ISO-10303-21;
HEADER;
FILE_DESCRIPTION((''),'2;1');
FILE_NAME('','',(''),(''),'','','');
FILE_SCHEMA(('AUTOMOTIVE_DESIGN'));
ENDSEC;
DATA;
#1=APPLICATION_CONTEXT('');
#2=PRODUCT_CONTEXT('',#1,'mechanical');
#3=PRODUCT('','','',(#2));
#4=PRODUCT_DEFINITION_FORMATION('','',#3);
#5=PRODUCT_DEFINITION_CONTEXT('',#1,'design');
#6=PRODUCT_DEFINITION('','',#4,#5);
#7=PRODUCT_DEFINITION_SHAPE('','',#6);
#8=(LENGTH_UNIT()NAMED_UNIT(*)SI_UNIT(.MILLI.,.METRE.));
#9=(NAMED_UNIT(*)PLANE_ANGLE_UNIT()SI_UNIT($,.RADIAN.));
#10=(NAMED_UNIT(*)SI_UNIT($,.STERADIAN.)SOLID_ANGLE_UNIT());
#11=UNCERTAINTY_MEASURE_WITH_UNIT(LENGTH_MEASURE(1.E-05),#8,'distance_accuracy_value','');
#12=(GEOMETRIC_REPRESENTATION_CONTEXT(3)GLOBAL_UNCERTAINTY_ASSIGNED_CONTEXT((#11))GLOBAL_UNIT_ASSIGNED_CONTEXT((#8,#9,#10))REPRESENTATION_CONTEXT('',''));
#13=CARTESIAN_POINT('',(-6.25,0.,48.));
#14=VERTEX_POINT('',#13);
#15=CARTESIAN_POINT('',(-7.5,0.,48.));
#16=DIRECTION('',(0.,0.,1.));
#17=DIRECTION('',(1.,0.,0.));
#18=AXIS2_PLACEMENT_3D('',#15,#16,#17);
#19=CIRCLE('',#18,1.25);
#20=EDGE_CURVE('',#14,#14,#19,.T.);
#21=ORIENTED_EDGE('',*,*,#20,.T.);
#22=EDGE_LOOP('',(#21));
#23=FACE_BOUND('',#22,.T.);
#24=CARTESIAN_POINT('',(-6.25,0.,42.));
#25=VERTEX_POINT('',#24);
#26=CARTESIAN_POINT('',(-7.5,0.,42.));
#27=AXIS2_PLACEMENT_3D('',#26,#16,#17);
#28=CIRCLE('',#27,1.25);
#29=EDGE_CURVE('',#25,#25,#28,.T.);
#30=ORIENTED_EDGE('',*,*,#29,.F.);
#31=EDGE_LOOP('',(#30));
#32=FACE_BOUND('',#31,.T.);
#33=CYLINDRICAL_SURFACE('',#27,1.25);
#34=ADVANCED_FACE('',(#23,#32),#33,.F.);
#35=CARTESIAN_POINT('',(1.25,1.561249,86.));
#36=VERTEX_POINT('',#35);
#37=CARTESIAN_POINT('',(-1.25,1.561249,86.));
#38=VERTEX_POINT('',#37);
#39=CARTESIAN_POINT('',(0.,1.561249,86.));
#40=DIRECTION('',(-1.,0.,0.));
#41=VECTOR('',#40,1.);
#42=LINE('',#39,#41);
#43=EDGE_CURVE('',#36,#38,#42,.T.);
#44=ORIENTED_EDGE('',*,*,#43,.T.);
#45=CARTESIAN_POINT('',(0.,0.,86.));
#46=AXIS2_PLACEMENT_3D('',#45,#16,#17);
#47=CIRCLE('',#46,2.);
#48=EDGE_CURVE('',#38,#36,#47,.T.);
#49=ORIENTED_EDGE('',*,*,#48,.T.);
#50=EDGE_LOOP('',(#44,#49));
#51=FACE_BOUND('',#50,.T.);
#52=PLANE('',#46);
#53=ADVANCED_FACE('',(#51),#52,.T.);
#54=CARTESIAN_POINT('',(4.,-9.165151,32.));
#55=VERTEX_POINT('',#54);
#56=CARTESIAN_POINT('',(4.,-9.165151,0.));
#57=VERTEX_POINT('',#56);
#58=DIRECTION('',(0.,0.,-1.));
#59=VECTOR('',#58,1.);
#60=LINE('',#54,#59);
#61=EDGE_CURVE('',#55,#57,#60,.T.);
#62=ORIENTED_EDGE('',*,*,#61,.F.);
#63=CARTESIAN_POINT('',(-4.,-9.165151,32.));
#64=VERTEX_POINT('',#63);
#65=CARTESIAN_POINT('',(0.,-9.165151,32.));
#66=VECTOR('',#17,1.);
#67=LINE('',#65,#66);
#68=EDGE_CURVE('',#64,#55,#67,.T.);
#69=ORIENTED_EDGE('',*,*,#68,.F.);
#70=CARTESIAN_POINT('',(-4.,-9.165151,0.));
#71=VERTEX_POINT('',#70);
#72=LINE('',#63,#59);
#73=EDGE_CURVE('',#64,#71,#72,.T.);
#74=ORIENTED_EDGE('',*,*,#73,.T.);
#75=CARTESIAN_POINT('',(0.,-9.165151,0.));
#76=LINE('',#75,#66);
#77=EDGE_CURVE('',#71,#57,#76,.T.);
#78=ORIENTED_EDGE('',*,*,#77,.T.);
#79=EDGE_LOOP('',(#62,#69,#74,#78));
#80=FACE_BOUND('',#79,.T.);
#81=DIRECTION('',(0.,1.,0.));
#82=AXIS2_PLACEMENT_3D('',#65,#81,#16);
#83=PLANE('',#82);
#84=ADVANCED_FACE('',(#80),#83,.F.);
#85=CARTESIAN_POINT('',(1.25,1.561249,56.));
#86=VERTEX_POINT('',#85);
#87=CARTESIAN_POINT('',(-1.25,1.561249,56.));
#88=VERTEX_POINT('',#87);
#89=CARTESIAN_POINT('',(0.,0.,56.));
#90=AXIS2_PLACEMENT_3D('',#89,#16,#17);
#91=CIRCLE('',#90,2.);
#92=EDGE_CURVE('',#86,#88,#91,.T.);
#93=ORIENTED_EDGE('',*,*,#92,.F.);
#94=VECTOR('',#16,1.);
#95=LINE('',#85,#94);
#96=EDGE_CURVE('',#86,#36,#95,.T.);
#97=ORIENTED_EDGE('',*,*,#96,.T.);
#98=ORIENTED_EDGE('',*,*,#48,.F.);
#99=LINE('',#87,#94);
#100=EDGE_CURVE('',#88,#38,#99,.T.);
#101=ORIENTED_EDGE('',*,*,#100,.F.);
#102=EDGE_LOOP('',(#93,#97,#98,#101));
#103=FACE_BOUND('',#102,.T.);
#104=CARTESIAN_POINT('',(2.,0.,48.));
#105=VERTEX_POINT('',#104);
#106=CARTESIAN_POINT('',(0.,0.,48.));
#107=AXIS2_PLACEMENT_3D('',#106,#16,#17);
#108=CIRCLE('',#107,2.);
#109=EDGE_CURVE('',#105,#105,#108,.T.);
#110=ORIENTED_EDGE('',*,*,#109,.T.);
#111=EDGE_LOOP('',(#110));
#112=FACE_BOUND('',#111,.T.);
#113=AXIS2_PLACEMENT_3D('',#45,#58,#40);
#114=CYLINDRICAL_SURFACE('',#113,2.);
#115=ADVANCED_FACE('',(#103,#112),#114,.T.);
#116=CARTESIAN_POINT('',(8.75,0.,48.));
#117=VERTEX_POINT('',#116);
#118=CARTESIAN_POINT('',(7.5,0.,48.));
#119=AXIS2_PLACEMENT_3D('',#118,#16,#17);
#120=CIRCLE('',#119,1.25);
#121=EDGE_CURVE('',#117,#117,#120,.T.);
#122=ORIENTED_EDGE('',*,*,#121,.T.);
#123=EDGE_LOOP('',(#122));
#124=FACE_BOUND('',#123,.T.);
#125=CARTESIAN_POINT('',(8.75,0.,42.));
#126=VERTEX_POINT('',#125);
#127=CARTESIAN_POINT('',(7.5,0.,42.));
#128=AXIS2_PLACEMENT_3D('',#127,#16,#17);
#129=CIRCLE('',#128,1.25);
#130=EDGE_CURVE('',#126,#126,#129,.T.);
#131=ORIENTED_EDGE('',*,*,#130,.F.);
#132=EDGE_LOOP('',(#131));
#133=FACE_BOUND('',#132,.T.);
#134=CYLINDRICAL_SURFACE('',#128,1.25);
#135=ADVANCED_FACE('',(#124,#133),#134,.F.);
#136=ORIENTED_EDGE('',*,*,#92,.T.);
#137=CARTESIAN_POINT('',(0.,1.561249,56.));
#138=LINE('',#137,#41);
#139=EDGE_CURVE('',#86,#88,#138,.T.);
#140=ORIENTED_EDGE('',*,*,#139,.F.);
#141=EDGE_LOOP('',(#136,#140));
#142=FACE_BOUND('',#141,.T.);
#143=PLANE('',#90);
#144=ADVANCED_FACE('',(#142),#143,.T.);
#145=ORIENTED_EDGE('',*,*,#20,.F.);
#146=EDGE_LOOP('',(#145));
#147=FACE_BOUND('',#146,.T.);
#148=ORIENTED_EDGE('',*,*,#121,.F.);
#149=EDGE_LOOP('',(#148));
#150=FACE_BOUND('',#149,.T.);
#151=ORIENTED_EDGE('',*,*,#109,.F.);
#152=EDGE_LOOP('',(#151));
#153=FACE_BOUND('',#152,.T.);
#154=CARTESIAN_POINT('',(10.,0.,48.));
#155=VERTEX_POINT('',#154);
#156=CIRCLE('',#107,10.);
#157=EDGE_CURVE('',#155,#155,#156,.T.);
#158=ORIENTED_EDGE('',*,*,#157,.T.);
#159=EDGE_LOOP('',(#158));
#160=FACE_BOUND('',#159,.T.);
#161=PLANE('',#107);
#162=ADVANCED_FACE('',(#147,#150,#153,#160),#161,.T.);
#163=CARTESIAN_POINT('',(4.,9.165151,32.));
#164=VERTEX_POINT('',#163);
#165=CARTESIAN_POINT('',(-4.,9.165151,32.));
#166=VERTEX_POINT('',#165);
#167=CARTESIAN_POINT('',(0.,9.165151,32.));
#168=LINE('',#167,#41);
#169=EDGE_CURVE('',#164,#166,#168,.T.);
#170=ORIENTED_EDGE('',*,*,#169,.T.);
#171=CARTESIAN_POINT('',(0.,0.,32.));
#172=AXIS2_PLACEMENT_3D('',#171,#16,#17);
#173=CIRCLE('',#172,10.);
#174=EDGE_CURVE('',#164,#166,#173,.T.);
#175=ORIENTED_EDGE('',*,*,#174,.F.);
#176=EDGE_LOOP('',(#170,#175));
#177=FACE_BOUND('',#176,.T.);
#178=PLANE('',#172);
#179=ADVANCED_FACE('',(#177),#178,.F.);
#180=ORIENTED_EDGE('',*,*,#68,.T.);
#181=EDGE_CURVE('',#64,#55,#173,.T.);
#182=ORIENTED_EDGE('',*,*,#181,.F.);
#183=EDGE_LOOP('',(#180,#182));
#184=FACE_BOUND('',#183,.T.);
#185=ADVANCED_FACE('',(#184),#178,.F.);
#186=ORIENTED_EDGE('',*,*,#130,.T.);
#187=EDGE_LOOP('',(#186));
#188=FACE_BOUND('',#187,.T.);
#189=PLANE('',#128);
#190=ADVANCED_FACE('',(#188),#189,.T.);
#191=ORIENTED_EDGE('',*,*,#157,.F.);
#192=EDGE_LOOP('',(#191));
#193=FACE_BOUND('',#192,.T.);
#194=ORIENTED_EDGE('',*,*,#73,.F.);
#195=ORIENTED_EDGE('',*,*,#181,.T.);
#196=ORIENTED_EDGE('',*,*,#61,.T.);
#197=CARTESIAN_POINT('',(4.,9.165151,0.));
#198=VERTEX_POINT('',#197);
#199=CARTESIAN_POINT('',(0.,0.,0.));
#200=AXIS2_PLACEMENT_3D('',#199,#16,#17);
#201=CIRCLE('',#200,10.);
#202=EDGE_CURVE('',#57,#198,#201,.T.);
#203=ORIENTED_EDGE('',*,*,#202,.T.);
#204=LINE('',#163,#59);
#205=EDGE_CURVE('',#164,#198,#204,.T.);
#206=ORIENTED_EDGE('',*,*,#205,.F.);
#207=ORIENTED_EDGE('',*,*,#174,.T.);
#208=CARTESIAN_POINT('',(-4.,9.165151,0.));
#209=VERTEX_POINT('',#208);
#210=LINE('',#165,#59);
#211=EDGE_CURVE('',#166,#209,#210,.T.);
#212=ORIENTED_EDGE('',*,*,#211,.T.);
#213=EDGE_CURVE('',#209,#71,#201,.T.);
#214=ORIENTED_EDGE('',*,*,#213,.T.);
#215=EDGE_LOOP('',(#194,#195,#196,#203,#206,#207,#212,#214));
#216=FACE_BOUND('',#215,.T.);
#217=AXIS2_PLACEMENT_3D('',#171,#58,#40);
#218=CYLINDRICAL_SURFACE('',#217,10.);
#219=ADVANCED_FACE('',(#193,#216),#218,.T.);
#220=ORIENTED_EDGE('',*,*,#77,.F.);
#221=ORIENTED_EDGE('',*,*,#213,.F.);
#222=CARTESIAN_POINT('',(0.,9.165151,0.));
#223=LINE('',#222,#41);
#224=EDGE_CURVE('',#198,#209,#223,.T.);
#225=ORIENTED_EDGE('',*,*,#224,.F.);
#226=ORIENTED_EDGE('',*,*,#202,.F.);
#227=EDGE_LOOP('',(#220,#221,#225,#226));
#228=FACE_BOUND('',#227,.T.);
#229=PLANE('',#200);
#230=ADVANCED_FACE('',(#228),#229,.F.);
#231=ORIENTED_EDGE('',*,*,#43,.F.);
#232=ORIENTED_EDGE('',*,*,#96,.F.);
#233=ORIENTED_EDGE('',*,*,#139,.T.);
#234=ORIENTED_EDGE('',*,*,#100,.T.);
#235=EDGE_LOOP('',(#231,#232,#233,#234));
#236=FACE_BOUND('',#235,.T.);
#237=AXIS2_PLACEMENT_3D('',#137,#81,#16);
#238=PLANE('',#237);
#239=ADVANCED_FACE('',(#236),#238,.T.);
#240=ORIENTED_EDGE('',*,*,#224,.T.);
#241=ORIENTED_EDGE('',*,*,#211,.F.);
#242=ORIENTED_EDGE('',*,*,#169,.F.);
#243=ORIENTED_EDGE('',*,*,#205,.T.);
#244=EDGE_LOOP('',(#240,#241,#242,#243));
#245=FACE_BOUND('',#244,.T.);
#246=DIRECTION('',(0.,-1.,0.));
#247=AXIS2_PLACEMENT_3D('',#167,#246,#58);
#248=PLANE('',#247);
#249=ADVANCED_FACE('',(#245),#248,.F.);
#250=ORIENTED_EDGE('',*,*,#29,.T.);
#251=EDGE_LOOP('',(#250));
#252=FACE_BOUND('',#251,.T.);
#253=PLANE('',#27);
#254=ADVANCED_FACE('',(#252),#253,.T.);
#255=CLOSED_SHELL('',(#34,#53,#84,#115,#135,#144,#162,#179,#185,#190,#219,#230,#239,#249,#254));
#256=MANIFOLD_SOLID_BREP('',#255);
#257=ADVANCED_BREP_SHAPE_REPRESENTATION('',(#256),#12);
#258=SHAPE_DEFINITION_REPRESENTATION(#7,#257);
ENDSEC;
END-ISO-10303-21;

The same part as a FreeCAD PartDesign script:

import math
import FreeCAD as App
import Part
import Sketcher

doc = App.newDocument("Part")
body = doc.addObject("PartDesign::Body", "Body")

sketch1 = doc.addObject("Sketcher::SketchObject", "Sketch")
body.addObject(sketch1)
sketch1.AttachmentSupport = (doc.XY_Plane, [""])
sketch1.MapMode = "FlatFace"
sketch1.addGeometry(Part.Circle(App.Vector(0, 0, 0), App.Vector(0, 0, 1), 10), False)
sketch1.addConstraint([
    Sketcher.Constraint("Coincident", 0, 3, -1, 1),
    Sketcher.Constraint("Diameter", 0, 20.0),
])
pad1 = doc.addObject("PartDesign::Pad", "Pad")
body.addObject(pad1)
pad1.Profile = sketch1
pad1.Length = 32

sketch2 = doc.addObject("Sketcher::SketchObject", "Sketch001")
body.addObject(sketch2)
sketch2.AttachmentSupport = (doc.XY_Plane, [""])
sketch2.MapMode = "FlatFace"
sketch2.addGeometry([
    Part.ArcOfCircle(Part.Circle(App.Vector(0, 0, 0), App.Vector(0, 0, 1), 10), math.radians(66), math.radians(114)),
    Part.LineSegment(App.Vector(4, 9, 0), App.Vector(-4, 9, 0)),
    Part.LineSegment(App.Vector(-4, -9, 0), App.Vector(4, -9, 0)),
    Part.ArcOfCircle(Part.Circle(App.Vector(0, 0, 0), App.Vector(0, 0, 1), 10), math.radians(-114), math.radians(-66)),
], False)
sketch2.addConstraint([
    Sketcher.Constraint("Coincident", 0, 1, 1, 1),
    Sketcher.Constraint("Coincident", 1, 2, 0, 2),
    Sketcher.Constraint("Coincident", 2, 1, 3, 1),
    Sketcher.Constraint("Coincident", 3, 2, 2, 2),
    Sketcher.Constraint("Horizontal", 1),
    Sketcher.Constraint("Horizontal", 2),
    Sketcher.Constraint("Coincident", 0, 3, -1, 1),
    Sketcher.Constraint("Coincident", 3, 3, -1, 1),
    Sketcher.Constraint("Equal", 0, 3),
    Sketcher.Constraint("Vertical", 1, 2, 2, 1),
    Sketcher.Constraint("Radius", 0, 10.0),
    Sketcher.Constraint("DistanceX", 1, 2, 1, 1, 8.0),
])
pocket1 = doc.addObject("PartDesign::Pocket", "Pocket")
body.addObject(pocket1)
pocket1.Profile = sketch2
pocket1.Length = 32
pocket1.Reversed = True

sketch3 = doc.addObject("Sketcher::SketchObject", "Sketch002")
body.addObject(sketch3)
sketch3.AttachmentSupport = (doc.XY_Plane, [""])
sketch3.MapMode = "FlatFace"
sketch3.AttachmentOffset = App.Placement(App.Vector(0, 0, 32), App.Rotation())
sketch3.addGeometry(Part.Circle(App.Vector(0, 0, 0), App.Vector(0, 0, 1), 10), False)
sketch3.addConstraint([
    Sketcher.Constraint("Coincident", 0, 3, -1, 1),
    Sketcher.Constraint("Diameter", 0, 20.0),
])
pad2 = doc.addObject("PartDesign::Pad", "Pad001")
body.addObject(pad2)
pad2.Profile = sketch3
pad2.Length = 16

sketch4 = doc.addObject("Sketcher::SketchObject", "Sketch003")
body.addObject(sketch4)
sketch4.AttachmentSupport = (doc.XY_Plane, [""])
sketch4.MapMode = "FlatFace"
sketch4.AttachmentOffset = App.Placement(App.Vector(0, 0, 48), App.Rotation())
sketch4.addGeometry([
    Part.Circle(App.Vector(-7.5, 0, 0), App.Vector(0, 0, 1), 1.2),
    Part.Circle(App.Vector(7.5, 0, 0), App.Vector(0, 0, 1), 1.2),
], False)
sketch4.addConstraint([
    Sketcher.Constraint("Equal", 0, 1),
    Sketcher.Constraint("Symmetric", 0, 3, 1, 3, -1, 1),
    Sketcher.Constraint("PointOnObject", 0, 3, -1),
    Sketcher.Constraint("Diameter", 0, 2.5),
    Sketcher.Constraint("DistanceX", 0, 3, 1, 3, 15.0),
])
pocket2 = doc.addObject("PartDesign::Pocket", "Pocket001")
body.addObject(pocket2)
pocket2.Profile = sketch4
pocket2.Length = 6

sketch5 = doc.addObject("Sketcher::SketchObject", "Sketch004")
body.addObject(sketch5)
sketch5.AttachmentSupport = (doc.XY_Plane, [""])
sketch5.MapMode = "FlatFace"
sketch5.AttachmentOffset = App.Placement(App.Vector(0, 0, 48), App.Rotation())
sketch5.addGeometry(Part.Circle(App.Vector(0, 0, 0), App.Vector(0, 0, 1), 2), False)
sketch5.addConstraint([
    Sketcher.Constraint("Coincident", 0, 3, -1, 1),
    Sketcher.Constraint("Diameter", 0, 4.0),
])
pad3 = doc.addObject("PartDesign::Pad", "Pad002")
body.addObject(pad3)
pad3.Profile = sketch5
pad3.Length = 38

sketch6 = doc.addObject("Sketcher::SketchObject", "Sketch005")
body.addObject(sketch6)
sketch6.AttachmentSupport = (doc.XY_Plane, [""])
sketch6.MapMode = "FlatFace"
sketch6.AttachmentOffset = App.Placement(App.Vector(0, 0, 56), App.Rotation())
sketch6.addGeometry([
    Part.LineSegment(App.Vector(-1.2, 1.6, 0), App.Vector(1.2, 1.6, 0)),
    Part.ArcOfCircle(Part.Circle(App.Vector(0, 0, 0), App.Vector(0, 0, 1), 2), math.radians(51), math.radians(129)),
], False)
sketch6.addConstraint([
    Sketcher.Constraint("Coincident", 0, 1, 1, 2),
    Sketcher.Constraint("Coincident", 1, 1, 0, 2),
    Sketcher.Constraint("Horizontal", 0),
    Sketcher.Constraint("Coincident", 1, 3, -1, 1),
    Sketcher.Constraint("Radius", 1, 2.0),
    Sketcher.Constraint("DistanceX", 0, 1, 0, 2, 2.5),
])
pocket3 = doc.addObject("PartDesign::Pocket", "Pocket002")
body.addObject(pocket3)
pocket3.Profile = sketch6
pocket3.Length = 30
pocket3.Reversed = True

doc.recompute()
